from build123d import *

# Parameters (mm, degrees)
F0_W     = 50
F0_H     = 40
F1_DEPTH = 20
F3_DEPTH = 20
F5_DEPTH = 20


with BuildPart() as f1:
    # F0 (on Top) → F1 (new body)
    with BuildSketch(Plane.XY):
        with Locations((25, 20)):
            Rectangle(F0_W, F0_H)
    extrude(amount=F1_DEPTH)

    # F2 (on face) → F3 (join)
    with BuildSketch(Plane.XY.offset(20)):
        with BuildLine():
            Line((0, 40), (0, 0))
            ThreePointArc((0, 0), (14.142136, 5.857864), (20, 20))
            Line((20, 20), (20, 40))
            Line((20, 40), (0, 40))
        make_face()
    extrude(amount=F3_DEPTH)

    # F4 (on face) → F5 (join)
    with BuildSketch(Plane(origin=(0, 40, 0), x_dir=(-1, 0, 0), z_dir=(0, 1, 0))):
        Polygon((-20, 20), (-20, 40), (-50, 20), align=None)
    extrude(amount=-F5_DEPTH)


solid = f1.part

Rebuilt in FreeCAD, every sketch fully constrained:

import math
import FreeCAD as App
import Part
import Sketcher
Q = App.Units.Quantity


def add_polygon(sketch, points):
    """Adds a closed chain of lines whose ends are joined by coincident constraints."""
    first, n = sketch.GeometryCount, len(points)
    for a, b in zip(points, points[1:] + points[:1]):
        sketch.addGeometry(Part.LineSegment(App.Vector(*a, 0), App.Vector(*b, 0)), False)
    for i in range(n):
        sketch.addConstraint(Sketcher.Constraint("Coincident", first + i, 2, first + (i + 1) % n, 1))

doc = App.newDocument("Part")
body = doc.addObject("PartDesign::Body", "Body")

sketch1 = body.newObject("Sketcher::SketchObject", "Sketch")
sketch1.AttachmentSupport = (doc.getObject("XY_Plane"), [""])
sketch1.MapMode = "FlatFace"
add_polygon(sketch1, [(0, 40), (0, 0), (50, 0), (50, 40)])
sketch1.addConstraint([
    Sketcher.Constraint("Vertical", 0),
    Sketcher.Constraint("Horizontal", 1),
    Sketcher.Constraint("Vertical", 2),
    Sketcher.Constraint("Horizontal", 3),
    Sketcher.Constraint("Coincident", 0, 2, -1, 1),
    Sketcher.Constraint("DistanceX", 1, 1, 1, 2, Q("50 mm")),
    Sketcher.Constraint("DistanceY", 0, 2, 0, 1, Q("40 mm")),
])
pad1 = body.newObject("PartDesign::Pad", "Pad")
pad1.Profile = sketch1
pad1.Length = 20

sketch2 = body.newObject("Sketcher::SketchObject", "Sketch001")
sketch2.AttachmentSupport = (doc.getObject("XY_Plane"), [""])
sketch2.MapMode = "FlatFace"
sketch2.AttachmentOffset = App.Placement(App.Vector(0, 0, 20), App.Rotation())
sketch2.addGeometry([
    Part.LineSegment(App.Vector(0, 40, 0), App.Vector(0, 0, 0)),
    Part.ArcOfCircle(Part.Circle(App.Vector(0, 20, 0), App.Vector(0, 0, 1), 20), math.radians(-90), math.radians(0)),
    Part.LineSegment(App.Vector(20, 20, 0), App.Vector(20, 40, 0)),
    Part.LineSegment(App.Vector(20, 40, 0), App.Vector(0, 40, 0)),
], False)
sketch2.addConstraint([
    Sketcher.Constraint("Coincident", 0, 2, 1, 1),
    Sketcher.Constraint("Tangent", 1, 2, 2, 1),
    Sketcher.Constraint("Coincident", 2, 2, 3, 1),
    Sketcher.Constraint("Coincident", 3, 2, 0, 1),
    Sketcher.Constraint("Vertical", 0),
    Sketcher.Constraint("Vertical", 2),
    Sketcher.Constraint("Horizontal", 3),
    Sketcher.Constraint("Coincident", 0, 2, -1, 1),
    Sketcher.Constraint("PointOnObject", 1, 3, -2),
    Sketcher.Constraint("Equal", 3, 2),
    Sketcher.Constraint("Radius", 1, Q("19.999999 mm")),
])
pad2 = body.newObject("PartDesign::Pad", "Pad001")
pad2.Profile = sketch2
pad2.Length = 20

sketch3 = body.newObject("Sketcher::SketchObject", "Sketch002")
sketch3.AttachmentSupport = (doc.getObject("XZ_Plane"), [""])
sketch3.MapMode = "FlatFace"
sketch3.AttachmentOffset = App.Placement(App.Vector(0, 0, -40), App.Rotation())
add_polygon(sketch3, [(20, 20), (20, 40), (50, 20)])
sketch3.addConstraint([
    Sketcher.Constraint("Vertical", 0),
    Sketcher.Constraint("Horizontal", 2),
    Sketcher.Constraint("DistanceX", 2, 2, 2, 1, Q("30 mm")),
    Sketcher.Constraint("DistanceY", 0, 1, 0, 2, Q("20 mm")),
    Sketcher.Constraint("DistanceX", -1, 1, 0, 2, Q("20 mm")),
    Sketcher.Constraint("DistanceY", -1, 1, 0, 2, Q("40 mm")),
])
pad3 = body.newObject("PartDesign::Pad", "Pad002")
pad3.Profile = sketch3
pad3.Length = 20

doc.recompute()
